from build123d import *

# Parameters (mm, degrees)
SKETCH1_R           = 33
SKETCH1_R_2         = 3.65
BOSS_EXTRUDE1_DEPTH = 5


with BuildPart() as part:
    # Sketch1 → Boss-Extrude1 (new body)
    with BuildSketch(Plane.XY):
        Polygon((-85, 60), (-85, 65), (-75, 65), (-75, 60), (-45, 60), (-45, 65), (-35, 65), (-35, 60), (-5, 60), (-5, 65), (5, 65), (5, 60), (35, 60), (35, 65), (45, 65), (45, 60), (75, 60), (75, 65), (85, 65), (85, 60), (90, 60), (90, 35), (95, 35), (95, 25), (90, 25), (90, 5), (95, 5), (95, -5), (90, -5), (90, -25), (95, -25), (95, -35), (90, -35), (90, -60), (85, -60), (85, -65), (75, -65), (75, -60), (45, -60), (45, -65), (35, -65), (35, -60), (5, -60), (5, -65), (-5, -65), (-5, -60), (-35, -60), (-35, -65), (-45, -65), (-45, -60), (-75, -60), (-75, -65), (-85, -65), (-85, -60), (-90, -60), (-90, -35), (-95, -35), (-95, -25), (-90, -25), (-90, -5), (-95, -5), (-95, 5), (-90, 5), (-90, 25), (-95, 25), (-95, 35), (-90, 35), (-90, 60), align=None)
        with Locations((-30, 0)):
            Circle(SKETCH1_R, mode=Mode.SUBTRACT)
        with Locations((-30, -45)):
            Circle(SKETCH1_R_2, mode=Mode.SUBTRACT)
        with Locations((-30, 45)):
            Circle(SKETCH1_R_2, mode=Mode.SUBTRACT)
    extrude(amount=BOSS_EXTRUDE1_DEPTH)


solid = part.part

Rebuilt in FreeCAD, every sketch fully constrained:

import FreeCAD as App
import Part
import Sketcher

V = App.Vector
Q = App.Units.Quantity

doc = App.newDocument("Part")
body = doc.addObject("PartDesign::Body", "Body")

sketch1 = body.newObject("Sketcher::SketchObject", "Sketch")
sketch1.AttachmentSupport = (doc.getObject("XY_Plane"), [""])
sketch1.MapMode = "FlatFace"
sketch1.addGeometry(Part.LineSegment(V(-85, 65, 0), V(-85, 60, 0)), False)
sketch1.addGeometry(Part.LineSegment(V(-85, 60, 0), V(-90, 60, 0)), False)
sketch1.addGeometry(Part.LineSegment(V(-90, 60, 0), V(-90, 35, 0)), False)
sketch1.addGeometry(Part.LineSegment(V(-90, 35, 0), V(-95, 35, 0)), False)
sketch1.addGeometry(Part.LineSegment(V(-95, 35, 0), V(-95, 25, 0)), False)
sketch1.addGeometry(Part.LineSegment(V(-95, 25, 0), V(-90, 25, 0)), False)
sketch1.addGeometry(Part.LineSegment(V(-90, 25, 0), V(-90, 5, 0)), False)
sketch1.addGeometry(Part.LineSegment(V(-90, 5, 0), V(-95, 5, 0)), False)
sketch1.addGeometry(Part.LineSegment(V(-95, 5, 0), V(-95, -5, 0)), False)
sketch1.addGeometry(Part.LineSegment(V(-95, -5, 0), V(-90, -5, 0)), False)
sketch1.addGeometry(Part.LineSegment(V(-90, -5, 0), V(-90, -25, 0)), False)
sketch1.addGeometry(Part.LineSegment(V(-90, -25, 0), V(-95, -25, 0)), False)
sketch1.addGeometry(Part.LineSegment(V(-95, -25, 0), V(-95, -35, 0)), False)
sketch1.addGeometry(Part.LineSegment(V(-95, -35, 0), V(-90, -35, 0)), False)
sketch1.addGeometry(Part.LineSegment(V(-90, -35, 0), V(-90, -60, 0)), False)
sketch1.addGeometry(Part.LineSegment(V(-90, -60, 0), V(-85, -60, 0)), False)
sketch1.addGeometry(Part.LineSegment(V(-85, -60, 0), V(-85, -65, 0)), False)
sketch1.addGeometry(Part.LineSegment(V(-85, -65, 0), V(-75, -65, 0)), False)
sketch1.addGeometry(Part.LineSegment(V(-75, -65, 0), V(-75, -60, 0)), False)
sketch1.addGeometry(Part.LineSegment(V(-75, -60, 0), V(-45, -60, 0)), False)
sketch1.addGeometry(Part.LineSegment(V(-45, -60, 0), V(-45, -65, 0)), False)
sketch1.addGeometry(Part.LineSegment(V(-45, -65, 0), V(-35, -65, 0)), False)
sketch1.addGeometry(Part.LineSegment(V(-35, -65, 0), V(-35, -60, 0)), False)
sketch1.addGeometry(Part.LineSegment(V(-35, -60, 0), V(-5, -60, 0)), False)
sketch1.addGeometry(Part.LineSegment(V(-5, -60, 0), V(-5, -65, 0)), False)
sketch1.addGeometry(Part.LineSegment(V(-5, -65, 0), V(5, -65, 0)), False)
sketch1.addGeometry(Part.LineSegment(V(5, -65, 0), V(5, -60, 0)), False)
sketch1.addGeometry(Part.LineSegment(V(5, -60, 0), V(35, -60, 0)), False)
sketch1.addGeometry(Part.LineSegment(V(35, -60, 0), V(35, -65, 0)), False)
sketch1.addGeometry(Part.LineSegment(V(35, -65, 0), V(45, -65, 0)), False)
sketch1.addGeometry(Part.LineSegment(V(45, -65, 0), V(45, -60, 0)), False)
sketch1.addGeometry(Part.LineSegment(V(45, -60, 0), V(75, -60, 0)), False)
sketch1.addGeometry(Part.LineSegment(V(75, -60, 0), V(75, -65, 0)), False)
sketch1.addGeometry(Part.LineSegment(V(75, -65, 0), V(85, -65, 0)), False)
sketch1.addGeometry(Part.LineSegment(V(85, -65, 0), V(85, -60, 0)), False)
sketch1.addGeometry(Part.LineSegment(V(85, -60, 0), V(90, -60, 0)), False)
sketch1.addGeometry(Part.LineSegment(V(90, -60, 0), V(90, -35, 0)), False)
sketch1.addGeometry(Part.LineSegment(V(90, -35, 0), V(95, -35, 0)), False)
sketch1.addGeometry(Part.LineSegment(V(95, -35, 0), V(95, -25, 0)), False)
sketch1.addGeometry(Part.LineSegment(V(95, -25, 0), V(90, -25, 0)), False)
sketch1.addGeometry(Part.LineSegment(V(90, -25, 0), V(90, -5, 0)), False)
sketch1.addGeometry(Part.LineSegment(V(90, -5, 0), V(95, -5, 0)), False)
sketch1.addGeometry(Part.LineSegment(V(95, -5, 0), V(95, 5, 0)), False)
sketch1.addGeometry(Part.LineSegment(V(95, 5, 0), V(90, 5, 0)), False)
sketch1.addGeometry(Part.LineSegment(V(90, 5, 0), V(90, 25, 0)), False)
sketch1.addGeometry(Part.LineSegment(V(90, 25, 0), V(95, 25, 0)), False)
sketch1.addGeometry(Part.LineSegment(V(95, 25, 0), V(95, 35, 0)), False)
sketch1.addGeometry(Part.LineSegment(V(95, 35, 0), V(90, 35, 0)), False)
sketch1.addGeometry(Part.LineSegment(V(90, 35, 0), V(90, 60, 0)), False)
sketch1.addGeometry(Part.LineSegment(V(90, 60, 0), V(85, 60, 0)), False)
sketch1.addGeometry(Part.LineSegment(V(85, 60, 0), V(85, 65, 0)), False)
sketch1.addGeometry(Part.LineSegment(V(85, 65, 0), V(75, 65, 0)), False)
sketch1.addGeometry(Part.LineSegment(V(75, 65, 0), V(75, 60, 0)), False)
sketch1.addGeometry(Part.LineSegment(V(75, 60, 0), V(45, 60, 0)), False)
sketch1.addGeometry(Part.LineSegment(V(45, 60, 0), V(45, 65, 0)), False)
sketch1.addGeometry(Part.LineSegment(V(45, 65, 0), V(35, 65, 0)), False)
sketch1.addGeometry(Part.LineSegment(V(35, 65, 0), V(35, 60, 0)), False)
sketch1.addGeometry(Part.LineSegment(V(35, 60, 0), V(5, 60, 0)), False)
sketch1.addGeometry(Part.LineSegment(V(5, 60, 0), V(5, 65, 0)), False)
sketch1.addGeometry(Part.LineSegment(V(5, 65, 0), V(-5, 65, 0)), False)
sketch1.addGeometry(Part.LineSegment(V(-5, 65, 0), V(-5, 60, 0)), False)
sketch1.addGeometry(Part.LineSegment(V(-5, 60, 0), V(-35, 60, 0)), False)
sketch1.addGeometry(Part.LineSegment(V(-35, 60, 0), V(-35, 65, 0)), False)
sketch1.addGeometry(Part.LineSegment(V(-35, 65, 0), V(-45, 65, 0)), False)
sketch1.addGeometry(Part.LineSegment(V(-45, 65, 0), V(-45, 60, 0)), False)
sketch1.addGeometry(Part.LineSegment(V(-45, 60, 0), V(-75, 60, 0)), False)
sketch1.addGeometry(Part.LineSegment(V(-75, 60, 0), V(-75, 65, 0)), False)
sketch1.addGeometry(Part.LineSegment(V(-75, 65, 0), V(-85, 65, 0)), False)
sketch1.addGeometry(Part.Circle(V(-30, -45, 0), V(0, 0, 1), 3.6), False)
sketch1.addGeometry(Part.Circle(V(-30, 0, 0), V(0, 0, 1), 33), False)
sketch1.addGeometry(Part.Circle(V(-30, 45, 0), V(0, 0, 1), 3.6), False)
sketch1.addConstraint(Sketcher.Constraint("Coincident", 0, 2, 1, 1))
sketch1.addConstraint(Sketcher.Constraint("Coincident", 1, 2, 2, 1))
sketch1.addConstraint(Sketcher.Constraint("Coincident", 2, 2, 3, 1))
sketch1.addConstraint(Sketcher.Constraint("Coincident", 3, 2, 4, 1))
sketch1.addConstraint(Sketcher.Constraint("Coincident", 4, 2, 5, 1))
sketch1.addConstraint(Sketcher.Constraint("Coincident", 5, 2, 6, 1))
sketch1.addConstraint(Sketcher.Constraint("Coincident", 6, 2, 7, 1))
sketch1.addConstraint(Sketcher.Constraint("Coincident", 7, 2, 8, 1))
sketch1.addConstraint(Sketcher.Constraint("Coincident", 8, 2, 9, 1))
sketch1.addConstraint(Sketcher.Constraint("Coincident", 9, 2, 10, 1))
sketch1.addConstraint(Sketcher.Constraint("Coincident", 10, 2, 11, 1))
sketch1.addConstraint(Sketcher.Constraint("Coincident", 11, 2, 12, 1))
sketch1.addConstraint(Sketcher.Constraint("Coincident", 12, 2, 13, 1))
sketch1.addConstraint(Sketcher.Constraint("Coincident", 13, 2, 14, 1))
sketch1.addConstraint(Sketcher.Constraint("Coincident", 14, 2, 15, 1))
sketch1.addConstraint(Sketcher.Constraint("Coincident", 15, 2, 16, 1))
sketch1.addConstraint(Sketcher.Constraint("Coincident", 16, 2, 17, 1))
sketch1.addConstraint(Sketcher.Constraint("Coincident", 17, 2, 18, 1))
sketch1.addConstraint(Sketcher.Constraint("Coincident", 18, 2, 19, 1))
sketch1.addConstraint(Sketcher.Constraint("Coincident", 19, 2, 20, 1))
sketch1.addConstraint(Sketcher.Constraint("Coincident", 20, 2, 21, 1))
sketch1.addConstraint(Sketcher.Constraint("Coincident", 21, 2, 22, 1))
sketch1.addConstraint(Sketcher.Constraint("Coincident", 22, 2, 23, 1))
sketch1.addConstraint(Sketcher.Constraint("Coincident", 23, 2, 24, 1))
sketch1.addConstraint(Sketcher.Constraint("Coincident", 24, 2, 25, 1))
sketch1.addConstraint(Sketcher.Constraint("Coincident", 25, 2, 26, 1))
sketch1.addConstraint(Sketcher.Constraint("Coincident", 26, 2, 27, 1))
sketch1.addConstraint(Sketcher.Constraint("Coincident", 27, 2, 28, 1))
sketch1.addConstraint(Sketcher.Constraint("Coincident", 28, 2, 29, 1))
sketch1.addConstraint(Sketcher.Constraint("Coincident", 29, 2, 30, 1))
sketch1.addConstraint(Sketcher.Constraint("Coincident", 30, 2, 31, 1))
sketch1.addConstraint(Sketcher.Constraint("Coincident", 31, 2, 32, 1))
sketch1.addConstraint(Sketcher.Constraint("Coincident", 32, 2, 33, 1))
sketch1.addConstraint(Sketcher.Constraint("Coincident", 33, 2, 34, 1))
sketch1.addConstraint(Sketcher.Constraint("Coincident", 34, 2, 35, 1))
sketch1.addConstraint(Sketcher.Constraint("Coincident", 35, 2, 36, 1))
sketch1.addConstraint(Sketcher.Constraint("Coincident", 36, 2, 37, 1))
sketch1.addConstraint(Sketcher.Constraint("Coincident", 37, 2, 38, 1))
sketch1.addConstraint(Sketcher.Constraint("Coincident", 38, 2, 39, 1))
sketch1.addConstraint(Sketcher.Constraint("Coincident", 39, 2, 40, 1))
sketch1.addConstraint(Sketcher.Constraint("Coincident", 40, 2, 41, 1))
sketch1.addConstraint(Sketcher.Constraint("Coincident", 41, 2, 42, 1))
sketch1.addConstraint(Sketcher.Constraint("Coincident", 42, 2, 43, 1))
sketch1.addConstraint(Sketcher.Constraint("Coincident", 43, 2, 44, 1))
sketch1.addConstraint(Sketcher.Constraint("Coincident", 44, 2, 45, 1))
sketch1.addConstraint(Sketcher.Constraint("Coincident", 45, 2, 46, 1))
sketch1.addConstraint(Sketcher.Constraint("Coincident", 46, 2, 47, 1))
sketch1.addConstraint(Sketcher.Constraint("Coincident", 47, 2, 48, 1))
sketch1.addConstraint(Sketcher.Constraint("Coincident", 48, 2, 49, 1))
sketch1.addConstraint(Sketcher.Constraint("Coincident", 49, 2, 50, 1))
sketch1.addConstraint(Sketcher.Constraint("Coincident", 50, 2, 51, 1))
sketch1.addConstraint(Sketcher.Constraint("Coincident", 51, 2, 52, 1))
sketch1.addConstraint(Sketcher.Constraint("Coincident", 52, 2, 53, 1))
sketch1.addConstraint(Sketcher.Constraint("Coincident", 53, 2, 54, 1))
sketch1.addConstraint(Sketcher.Constraint("Coincident", 54, 2, 55, 1))
sketch1.addConstraint(Sketcher.Constraint("Coincident", 55, 2, 56, 1))
sketch1.addConstraint(Sketcher.Constraint("Coincident", 56, 2, 57, 1))
sketch1.addConstraint(Sketcher.Constraint("Coincident", 57, 2, 58, 1))
sketch1.addConstraint(Sketcher.Constraint("Coincident", 58, 2, 59, 1))
sketch1.addConstraint(Sketcher.Constraint("Coincident", 59, 2, 60, 1))
sketch1.addConstraint(Sketcher.Constraint("Coincident", 60, 2, 61, 1))
sketch1.addConstraint(Sketcher.Constraint("Coincident", 61, 2, 62, 1))
sketch1.addConstraint(Sketcher.Constraint("Coincident", 62, 2, 63, 1))
sketch1.addConstraint(Sketcher.Constraint("Coincident", 63, 2, 64, 1))
sketch1.addConstraint(Sketcher.Constraint("Coincident", 64, 2, 65, 1))
sketch1.addConstraint(Sketcher.Constraint("Coincident", 65, 2, 66, 1))
sketch1.addConstraint(Sketcher.Constraint("Coincident", 66, 2, 67, 1))
sketch1.addConstraint(Sketcher.Constraint("Coincident", 67, 2, 0, 1))
sketch1.addConstraint(Sketcher.Constraint("Vertical", 0))
sketch1.addConstraint(Sketcher.Constraint("Horizontal", 1))
sketch1.addConstraint(Sketcher.Constraint("Vertical", 2))
sketch1.addConstraint(Sketcher.Constraint("Horizontal", 3))
sketch1.addConstraint(Sketcher.Constraint("Vertical", 4))
sketch1.addConstraint(Sketcher.Constraint("Horizontal", 5))
sketch1.addConstraint(Sketcher.Constraint("Vertical", 6))
sketch1.addConstraint(Sketcher.Constraint("Horizontal", 7))
sketch1.addConstraint(Sketcher.Constraint("Vertical", 8))
sketch1.addConstraint(Sketcher.Constraint("Horizontal", 9))
sketch1.addConstraint(Sketcher.Constraint("Vertical", 10))
sketch1.addConstraint(Sketcher.Constraint("Horizontal", 11))
sketch1.addConstraint(Sketcher.Constraint("Vertical", 12))
sketch1.addConstraint(Sketcher.Constraint("Horizontal", 13))
sketch1.addConstraint(Sketcher.Constraint("Vertical", 14))
sketch1.addConstraint(Sketcher.Constraint("Horizontal", 15))
sketch1.addConstraint(Sketcher.Constraint("Vertical", 16))
sketch1.addConstraint(Sketcher.Constraint("Horizontal", 17))
sketch1.addConstraint(Sketcher.Constraint("Vertical", 18))
sketch1.addConstraint(Sketcher.Constraint("Horizontal", 19))
sketch1.addConstraint(Sketcher.Constraint("Vertical", 20))
sketch1.addConstraint(Sketcher.Constraint("Horizontal", 21))
sketch1.addConstraint(Sketcher.Constraint("Vertical", 22))
sketch1.addConstraint(Sketcher.Constraint("Horizontal", 23))
sketch1.addConstraint(Sketcher.Constraint("Vertical", 24))
sketch1.addConstraint(Sketcher.Constraint("Horizontal", 25))
sketch1.addConstraint(Sketcher.Constraint("Vertical", 26))
sketch1.addConstraint(Sketcher.Constraint("Horizontal", 27))
sketch1.addConstraint(Sketcher.Constraint("Vertical", 28))
sketch1.addConstraint(Sketcher.Constraint("Horizontal", 29))
sketch1.addConstraint(Sketcher.Constraint("Vertical", 30))
sketch1.addConstraint(Sketcher.Constraint("Horizontal", 31))
sketch1.addConstraint(Sketcher.Constraint("Vertical", 32))
sketch1.addConstraint(Sketcher.Constraint("Horizontal", 33))
sketch1.addConstraint(Sketcher.Constraint("Vertical", 34))
sketch1.addConstraint(Sketcher.Constraint("Horizontal", 35))
sketch1.addConstraint(Sketcher.Constraint("Vertical", 36))
sketch1.addConstraint(Sketcher.Constraint("Horizontal", 37))
sketch1.addConstraint(Sketcher.Constraint("Vertical", 38))
sketch1.addConstraint(Sketcher.Constraint("Horizontal", 39))
sketch1.addConstraint(Sketcher.Constraint("Vertical", 40))
sketch1.addConstraint(Sketcher.Constraint("Horizontal", 41))
sketch1.addConstraint(Sketcher.Constraint("Vertical", 42))
sketch1.addConstraint(Sketcher.Constraint("Horizontal", 43))
sketch1.addConstraint(Sketcher.Constraint("Vertical", 44))
sketch1.addConstraint(Sketcher.Constraint("Horizontal", 45))
sketch1.addConstraint(Sketcher.Constraint("Vertical", 46))
sketch1.addConstraint(Sketcher.Constraint("Horizontal", 47))
sketch1.addConstraint(Sketcher.Constraint("Vertical", 48))
sketch1.addConstraint(Sketcher.Constraint("Horizontal", 49))
sketch1.addConstraint(Sketcher.Constraint("Vertical", 50))
sketch1.addConstraint(Sketcher.Constraint("Horizontal", 51))
sketch1.addConstraint(Sketcher.Constraint("Vertical", 52))
sketch1.addConstraint(Sketcher.Constraint("Horizontal", 53))
sketch1.addConstraint(Sketcher.Constraint("Vertical", 54))
sketch1.addConstraint(Sketcher.Constraint("Horizontal", 55))
sketch1.addConstraint(Sketcher.Constraint("Vertical", 56))
sketch1.addConstraint(Sketcher.Constraint("Horizontal", 57))
sketch1.addConstraint(Sketcher.Constraint("Vertical", 58))
sketch1.addConstraint(Sketcher.Constraint("Horizontal", 59))
sketch1.addConstraint(Sketcher.Constraint("Vertical", 60))
sketch1.addConstraint(Sketcher.Constraint("Horizontal", 61))
sketch1.addConstraint(Sketcher.Constraint("Vertical", 62))
sketch1.addConstraint(Sketcher.Constraint("Horizontal", 63))
sketch1.addConstraint(Sketcher.Constraint("Vertical", 64))
sketch1.addConstraint(Sketcher.Constraint("Horizontal", 65))
sketch1.addConstraint(Sketcher.Constraint("Vertical", 66))
sketch1.addConstraint(Sketcher.Constraint("Horizontal", 67))
sketch1.addConstraint(Sketcher.Constraint("Equal", 68, 70))
sketch1.addConstraint(Sketcher.Constraint("Symmetric", 0, 2, 34, 2, -1, 1))
sketch1.addConstraint(Sketcher.Constraint("Symmetric", 2, 2, 36, 2, -1, 1))
sketch1.addConstraint(Sketcher.Constraint("Symmetric", 4, 2, 38, 2, -1, 1))
sketch1.addConstraint(Sketcher.Constraint("Symmetric", 6, 2, 40, 2, -1, 1))
sketch1.addConstraint(Sketcher.Constraint("Symmetric", 8, 2, 42, 2, -1, 1))
sketch1.addConstraint(Sketcher.Constraint("Symmetric", 10, 2, 44, 2, -1, 1))
sketch1.addConstraint(Sketcher.Constraint("Symmetric", 12, 2, 46, 2, -1, 1))
sketch1.addConstraint(Sketcher.Constraint("Symmetric", 14, 2, 48, 2, -1, 1))
sketch1.addConstraint(Sketcher.Constraint("Symmetric", 16, 2, 50, 2, -1, 1))
sketch1.addConstraint(Sketcher.Constraint("Symmetric", 18, 2, 52, 2, -1, 1))
sketch1.addConstraint(Sketcher.Constraint("Symmetric", 20, 2, 54, 2, -1, 1))
sketch1.addConstraint(Sketcher.Constraint("Symmetric", 22, 2, 56, 2, -1, 1))
sketch1.addConstraint(Sketcher.Constraint("Symmetric", 24, 2, 58, 2, -1, 1))
sketch1.addConstraint(Sketcher.Constraint("Symmetric", 26, 2, 60, 2, -1, 1))
sketch1.addConstraint(Sketcher.Constraint("Symmetric", 28, 2, 62, 2, -1, 1))
sketch1.addConstraint(Sketcher.Constraint("Symmetric", 30, 2, 64, 2, -1, 1))
sketch1.addConstraint(Sketcher.Constraint("Symmetric", 32, 2, 66, 2, -1, 1))
sketch1.addConstraint(Sketcher.Constraint("Symmetric", 23, 2, 26, 2, -2))
sketch1.addConstraint(Sketcher.Constraint("Symmetric", 21, 2, 28, 2, -2))
sketch1.addConstraint(Sketcher.Constraint("Symmetric", 19, 2, 30, 2, -2))
sketch1.addConstraint(Sketcher.Constraint("Symmetric", 17, 2, 32, 2, -2))
sketch1.addConstraint(Sketcher.Constraint("Symmetric", 15, 2, 34, 2, -2))
sketch1.addConstraint(Sketcher.Constraint("Symmetric", 13, 2, 36, 2, -2))
sketch1.addConstraint(Sketcher.Constraint("Symmetric", 11, 2, 38, 2, -2))
sketch1.addConstraint(Sketcher.Constraint("Symmetric", 9, 2, 40, 2, -2))
sketch1.addConstraint(Sketcher.Constraint("Symmetric", 68, 3, 70, 3, -1))
sketch1.addConstraint(Sketcher.Constraint("PointOnObject", 69, 3, -1))
sketch1.addConstraint(Sketcher.Constraint("Horizontal", 15, 2, 18, 2))
sketch1.addConstraint(Sketcher.Constraint("Horizontal", 17, 2, 20, 2))
sketch1.addConstraint(Sketcher.Constraint("Horizontal", 19, 2, 22, 2))
sketch1.addConstraint(Sketcher.Constraint("Horizontal", 21, 2, 24, 2))
sketch1.addConstraint(Sketcher.Constraint("Vertical", 68, 3, 69, 3))
sketch1.addConstraint(Sketcher.Constraint("Vertical", 2, 2, 5, 2))
sketch1.addConstraint(Sketcher.Constraint("Vertical", 4, 2, 7, 2))
sketch1.addConstraint(Sketcher.Constraint("Equal", 1, 3))
sketch1.addConstraint(Sketcher.Constraint("Equal", 17, 21))
sketch1.addConstraint(Sketcher.Constraint("Equal", 19, 23))
sketch1.addConstraint(Sketcher.Constraint("Equal", 21, 25))
sketch1.addConstraint(Sketcher.Constraint("Equal", 49, 0))
sketch1.addConstraint(Sketcher.Constraint("Equal", 67, 4))
sketch1.addConstraint(Sketcher.Constraint("Equal", 4, 8))
sketch1.addConstraint(Sketcher.Constraint("Diameter", 69, Q("66 mm")))
sketch1.addConstraint(Sketcher.Constraint("Diameter", 68, Q("7.3 mm")))
sketch1.addConstraint(Sketcher.Constraint("DistanceX", 1, 2, 1, 1, Q("5 mm")))
sketch1.addConstraint(Sketcher.Constraint("DistanceX", 17, 1, 17, 2, Q("10 mm")))
sketch1.addConstraint(Sketcher.Constraint("DistanceX", 19, 1, 19, 2, Q("30 mm")))
sketch1.addConstraint(Sketcher.Constraint("DistanceY", 2, 2, 2, 1, Q("25 mm")))
sketch1.addConstraint(Sketcher.Constraint("DistanceY", 6, 2, 6, 1, Q("20 mm")))
sketch1.addConstraint(Sketcher.Constraint("DistanceX", 68, 3, -1, 1, Q("30 mm")))
sketch1.addConstraint(Sketcher.Constraint("DistanceY", 68, 3, -1, 1, Q("45 mm")))
pad1 = body.newObject("PartDesign::Pad", "Pad")
pad1.Profile = sketch1
pad1.Length = 5

doc.recompute()
